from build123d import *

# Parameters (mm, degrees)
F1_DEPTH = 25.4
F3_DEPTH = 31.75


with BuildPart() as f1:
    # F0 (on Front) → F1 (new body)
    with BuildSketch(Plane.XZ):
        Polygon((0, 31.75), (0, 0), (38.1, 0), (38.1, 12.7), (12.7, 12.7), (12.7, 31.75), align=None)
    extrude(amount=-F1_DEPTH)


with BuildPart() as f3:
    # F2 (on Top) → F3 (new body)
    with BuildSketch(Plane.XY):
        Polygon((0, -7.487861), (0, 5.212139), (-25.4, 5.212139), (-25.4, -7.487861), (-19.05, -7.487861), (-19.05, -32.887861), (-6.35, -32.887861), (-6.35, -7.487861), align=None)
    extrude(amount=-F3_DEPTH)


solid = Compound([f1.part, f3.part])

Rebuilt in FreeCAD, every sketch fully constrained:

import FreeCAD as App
import Part
import Sketcher

V = App.Vector
Q = App.Units.Quantity

doc = App.newDocument("Part")
body = doc.addObject("PartDesign::Body", "Body")

# Sketch on XZ plane
sketch1 = doc.addObject("Sketcher::SketchObject", "Sketch")
body.addObject(sketch1)
sketch1.AttachmentSupport = (doc.XZ_Plane, [""])
sketch1.MapMode = "FlatFace"
sketch1.addGeometry([
    Part.LineSegment(V(0, 32, 0), V(0, 0, 0)),  # 0
    Part.LineSegment(V(0, 0, 0), V(38, 0, 0)),  # 1
    Part.LineSegment(V(38, 0, 0), V(38, 13, 0)),  # 2
    Part.LineSegment(V(38, 13, 0), V(13, 13, 0)),  # 3
    Part.LineSegment(V(13, 13, 0), V(13, 32, 0)),  # 4
    Part.LineSegment(V(13, 32, 0), V(0, 32, 0)),  # 5
], False)
sketch1.addConstraint([
    Sketcher.Constraint("Coincident", 0, 2, 1, 1),
    Sketcher.Constraint("Coincident", 1, 2, 2, 1),
    Sketcher.Constraint("Coincident", 2, 2, 3, 1),
    Sketcher.Constraint("Coincident", 3, 2, 4, 1),
    Sketcher.Constraint("Coincident", 4, 2, 5, 1),
    Sketcher.Constraint("Coincident", 5, 2, 0, 1),
    Sketcher.Constraint("Vertical", 0),
    Sketcher.Constraint("Horizontal", 1),
    Sketcher.Constraint("Vertical", 2),
    Sketcher.Constraint("Horizontal", 3),
    Sketcher.Constraint("Vertical", 4),
    Sketcher.Constraint("Horizontal", 5),
    Sketcher.Constraint("Coincident", 0, 2, -1, 1),
    Sketcher.Constraint("Equal", 5, 2),
    Sketcher.Constraint("DistanceX", 3, 2, 3, 1, Q("1 in")),
    Sketcher.Constraint("DistanceX", 1, 1, 1, 2, Q("1.5 in")),
    Sketcher.Constraint("DistanceY", 0, 2, 0, 1, Q("1.25 in")),
])
pad1 = doc.addObject("PartDesign::Pad", "Pad")
body.addObject(pad1)
pad1.Profile = sketch1
pad1.Length = Q("1 in")
pad1.Reversed = True
body2 = doc.addObject("PartDesign::Body", "Body001")

# Sketch on XY plane
sketch2 = doc.addObject("Sketcher::SketchObject", "Sketch001")
body2.addObject(sketch2)
sketch2.AttachmentSupport = (doc.getObject("XY_Plane001"), [""])
sketch2.MapMode = "FlatFace"
sketch2.addGeometry([
    Part.LineSegment(V(0, -7, 0), V(0, 5, 0)),  # 0
    Part.LineSegment(V(0, 5, 0), V(-25, 5, 0)),  # 1
    Part.LineSegment(V(-25, 5, 0), V(-25, -7, 0)),  # 2
    Part.LineSegment(V(-25, -7, 0), V(-19, -7, 0)),  # 3
    Part.LineSegment(V(-19, -7, 0), V(-19, -33, 0)),  # 4
    Part.LineSegment(V(-19, -33, 0), V(-6, -33, 0)),  # 5
    Part.LineSegment(V(-6, -33, 0), V(-6, -7, 0)),  # 6
    Part.LineSegment(V(-6, -7, 0), V(0, -7, 0)),  # 7
], False)
sketch2.addConstraint([
    Sketcher.Constraint("Coincident", 0, 2, 1, 1),
    Sketcher.Constraint("Coincident", 1, 2, 2, 1),
    Sketcher.Constraint("Coincident", 2, 2, 3, 1),
    Sketcher.Constraint("Coincident", 3, 2, 4, 1),
    Sketcher.Constraint("Coincident", 4, 2, 5, 1),
    Sketcher.Constraint("Coincident", 5, 2, 6, 1),
    Sketcher.Constraint("Coincident", 6, 2, 7, 1),
    Sketcher.Constraint("Coincident", 7, 2, 0, 1),
    Sketcher.Constraint("Vertical", 0),
    Sketcher.Constraint("Horizontal", 1),
    Sketcher.Constraint("Vertical", 2),
    Sketcher.Constraint("Horizontal", 3),
    Sketcher.Constraint("Vertical", 4),
    Sketcher.Constraint("Horizontal", 5),
    Sketcher.Constraint("Vertical", 6),
    Sketcher.Constraint("Horizontal", 7),
    Sketcher.Constraint("PointOnObject", 0, 2, -2),
    Sketcher.Constraint("Horizontal", 3, 2, 6, 2),
    Sketcher.Constraint("Equal", 3, 7),
    Sketcher.Constraint("Equal", 5, 0),
    Sketcher.Constraint("Equal", 1, 4),
    Sketcher.Constraint("DistanceX", 1, 2, 1, 1, Q("1 in")),
    Sketcher.Constraint("DistanceX", 5, 1, 5, 2, Q("0.5 in")),
    Sketcher.Constraint("DistanceY", -1, 1, 0, 2, Q("5.212139 mm")),
])
pad2 = doc.addObject("PartDesign::Pad", "Pad001")
body2.addObject(pad2)
pad2.Profile = sketch2
pad2.Length = Q("1.25 in")
pad2.Reversed = True

doc.recompute()
